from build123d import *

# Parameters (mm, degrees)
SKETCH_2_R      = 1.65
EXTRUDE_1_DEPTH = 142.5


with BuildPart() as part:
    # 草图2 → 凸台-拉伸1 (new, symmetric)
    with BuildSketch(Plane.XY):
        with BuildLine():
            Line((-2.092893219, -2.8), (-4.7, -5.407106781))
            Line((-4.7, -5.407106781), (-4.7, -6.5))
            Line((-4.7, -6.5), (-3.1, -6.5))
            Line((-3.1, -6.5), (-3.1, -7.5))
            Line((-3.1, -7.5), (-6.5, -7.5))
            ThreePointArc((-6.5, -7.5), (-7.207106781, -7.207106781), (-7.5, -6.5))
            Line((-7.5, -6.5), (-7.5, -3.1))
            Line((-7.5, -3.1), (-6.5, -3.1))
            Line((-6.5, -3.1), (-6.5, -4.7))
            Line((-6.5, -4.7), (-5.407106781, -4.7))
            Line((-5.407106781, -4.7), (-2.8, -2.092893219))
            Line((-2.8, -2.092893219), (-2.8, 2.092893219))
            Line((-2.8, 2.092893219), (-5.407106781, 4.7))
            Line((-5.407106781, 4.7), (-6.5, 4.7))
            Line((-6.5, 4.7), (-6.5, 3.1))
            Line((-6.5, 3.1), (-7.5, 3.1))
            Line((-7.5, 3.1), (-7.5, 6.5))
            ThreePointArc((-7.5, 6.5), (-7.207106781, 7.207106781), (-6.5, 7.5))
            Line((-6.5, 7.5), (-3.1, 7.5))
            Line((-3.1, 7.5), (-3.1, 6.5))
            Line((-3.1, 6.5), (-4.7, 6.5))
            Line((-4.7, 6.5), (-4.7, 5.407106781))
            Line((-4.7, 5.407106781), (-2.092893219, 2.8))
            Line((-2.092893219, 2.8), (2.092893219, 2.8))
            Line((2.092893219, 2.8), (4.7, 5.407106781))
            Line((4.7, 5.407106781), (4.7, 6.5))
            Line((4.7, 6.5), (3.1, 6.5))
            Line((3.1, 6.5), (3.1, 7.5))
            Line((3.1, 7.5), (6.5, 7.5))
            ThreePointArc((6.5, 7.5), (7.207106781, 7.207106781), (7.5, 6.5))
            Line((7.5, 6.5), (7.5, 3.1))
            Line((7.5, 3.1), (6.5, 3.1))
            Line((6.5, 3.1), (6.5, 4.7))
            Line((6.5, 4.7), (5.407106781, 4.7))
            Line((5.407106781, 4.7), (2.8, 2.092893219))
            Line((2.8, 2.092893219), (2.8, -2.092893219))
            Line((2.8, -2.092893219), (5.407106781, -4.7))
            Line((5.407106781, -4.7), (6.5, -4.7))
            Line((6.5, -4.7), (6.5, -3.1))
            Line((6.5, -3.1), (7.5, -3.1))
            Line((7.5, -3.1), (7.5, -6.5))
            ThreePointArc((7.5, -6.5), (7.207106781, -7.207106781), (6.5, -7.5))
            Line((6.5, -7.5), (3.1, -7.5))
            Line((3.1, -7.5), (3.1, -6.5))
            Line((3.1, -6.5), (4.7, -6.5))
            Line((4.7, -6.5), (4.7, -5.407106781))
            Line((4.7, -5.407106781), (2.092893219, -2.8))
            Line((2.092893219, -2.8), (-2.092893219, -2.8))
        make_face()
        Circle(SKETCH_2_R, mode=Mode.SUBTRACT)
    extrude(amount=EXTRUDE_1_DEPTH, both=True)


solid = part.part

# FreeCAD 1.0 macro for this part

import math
import FreeCAD as App
import Part
import Sketcher

doc = App.newDocument("Part")
body = doc.addObject("PartDesign::Body", "Body")

# Sketch on XY plane
sketch1 = body.newObject("Sketcher::SketchObject", "Sketch")
sketch1.AttachmentSupport = (doc.getObject("XY_Plane"), [""])
sketch1.MapMode = "FlatFace"
sketch1.addGeometry(Part.LineSegment(App.Vector(-4.7, -5.4, 0), App.Vector(-2.1, -2.8, 0)), False)
sketch1.addGeometry(Part.LineSegment(App.Vector(-2.1, -2.8, 0), App.Vector(2.1, -2.8, 0)), False)
sketch1.addGeometry(Part.LineSegment(App.Vector(2.1, -2.8, 0), App.Vector(4.7, -5.4, 0)), False)
sketch1.addGeometry(Part.LineSegment(App.Vector(4.7, -5.4, 0), App.Vector(4.7, -6.5, 0)), False)
sketch1.addGeometry(Part.LineSegment(App.Vector(4.7, -6.5, 0), App.Vector(3.1, -6.5, 0)), False)
sketch1.addGeometry(Part.LineSegment(App.Vector(3.1, -6.5, 0), App.Vector(3.1, -7.5, 0)), False)
sketch1.addGeometry(Part.LineSegment(App.Vector(3.1, -7.5, 0), App.Vector(6.5, -7.5, 0)), False)
sketch1.addGeometry(Part.ArcOfCircle(Part.Circle(App.Vector(6.5, -6.5, 0), App.Vector(0, 0, 1), 1), math.radians(-90), math.radians(0)), False)
sketch1.addGeometry(Part.LineSegment(App.Vector(7.5, -6.5, 0), App.Vector(7.5, -3.1, 0)), False)
sketch1.addGeometry(Part.LineSegment(App.Vector(7.5, -3.1, 0), App.Vector(6.5, -3.1, 0)), False)
sketch1.addGeometry(Part.LineSegment(App.Vector(6.5, -3.1, 0), App.Vector(6.5, -4.7, 0)), False)
sketch1.addGeometry(Part.LineSegment(App.Vector(6.5, -4.7, 0), App.Vector(5.4, -4.7, 0)), False)
sketch1.addGeometry(Part.LineSegment(App.Vector(5.4, -4.7, 0), App.Vector(2.8, -2.1, 0)), False)
sketch1.addGeometry(Part.LineSegment(App.Vector(2.8, -2.1, 0), App.Vector(2.8, 2.1, 0)), False)
sketch1.addGeometry(Part.LineSegment(App.Vector(2.8, 2.1, 0), App.Vector(5.4, 4.7, 0)), False)
sketch1.addGeometry(Part.LineSegment(App.Vector(5.4, 4.7, 0), App.Vector(6.5, 4.7, 0)), False)
sketch1.addGeometry(Part.LineSegment(App.Vector(6.5, 4.7, 0), App.Vector(6.5, 3.1, 0)), False)
sketch1.addGeometry(Part.LineSegment(App.Vector(6.5, 3.1, 0), App.Vector(7.5, 3.1, 0)), False)
sketch1.addGeometry(Part.LineSegment(App.Vector(7.5, 3.1, 0), App.Vector(7.5, 6.5, 0)), False)
sketch1.addGeometry(Part.ArcOfCircle(Part.Circle(App.Vector(6.5, 6.5, 0), App.Vector(0, 0, 1), 1), math.radians(0), math.radians(90)), False)
sketch1.addGeometry(Part.LineSegment(App.Vector(6.5, 7.5, 0), App.Vector(3.1, 7.5, 0)), False)
sketch1.addGeometry(Part.LineSegment(App.Vector(3.1, 7.5, 0), App.Vector(3.1, 6.5, 0)), False)
sketch1.addGeometry(Part.LineSegment(App.Vector(3.1, 6.5, 0), App.Vector(4.7, 6.5, 0)), False)
sketch1.addGeometry(Part.LineSegment(App.Vector(4.7, 6.5, 0), App.Vector(4.7, 5.4, 0)), False)
sketch1.addGeometry(Part.LineSegment(App.Vector(4.7, 5.4, 0), App.Vector(2.1, 2.8, 0)), False)
sketch1.addGeometry(Part.LineSegment(App.Vector(2.1, 2.8, 0), App.Vector(-2.1, 2.8, 0)), False)
sketch1.addGeometry(Part.LineSegment(App.Vector(-2.1, 2.8, 0), App.Vector(-4.7, 5.4, 0)), False)
sketch1.addGeometry(Part.LineSegment(App.Vector(-4.7, 5.4, 0), App.Vector(-4.7, 6.5, 0)), False)
sketch1.addGeometry(Part.LineSegment(App.Vector(-4.7, 6.5, 0), App.Vector(-3.1, 6.5, 0)), False)
sketch1.addGeometry(Part.LineSegment(App.Vector(-3.1, 6.5, 0), App.Vector(-3.1, 7.5, 0)), False)
sketch1.addGeometry(Part.LineSegment(App.Vector(-3.1, 7.5, 0), App.Vector(-6.5, 7.5, 0)), False)
sketch1.addGeometry(Part.ArcOfCircle(Part.Circle(App.Vector(-6.5, 6.5, 0), App.Vector(0, 0, 1), 1), math.radians(90), math.radians(180)), False)
sketch1.addGeometry(Part.LineSegment(App.Vector(-7.5, 6.5, 0), App.Vector(-7.5, 3.1, 0)), False)
sketch1.addGeometry(Part.LineSegment(App.Vector(-7.5, 3.1, 0), App.Vector(-6.5, 3.1, 0)), False)
sketch1.addGeometry(Part.LineSegment(App.Vector(-6.5, 3.1, 0), App.Vector(-6.5, 4.7, 0)), False)
sketch1.addGeometry(Part.LineSegment(App.Vector(-6.5, 4.7, 0), App.Vector(-5.4, 4.7, 0)), False)
sketch1.addGeometry(Part.LineSegment(App.Vector(-5.4, 4.7, 0), App.Vector(-2.8, 2.1, 0)), False)
sketch1.addGeometry(Part.LineSegment(App.Vector(-2.8, 2.1, 0), App.Vector(-2.8, -2.1, 0)), False)
sketch1.addGeometry(Part.LineSegment(App.Vector(-2.8, -2.1, 0), App.Vector(-5.4, -4.7, 0)), False)
sketch1.addGeometry(Part.LineSegment(App.Vector(-5.4, -4.7, 0), App.Vector(-6.5, -4.7, 0)), False)
sketch1.addGeometry(Part.LineSegment(App.Vector(-6.5, -4.7, 0), App.Vector(-6.5, -3.1, 0)), False)
sketch1.addGeometry(Part.LineSegment(App.Vector(-6.5, -3.1, 0), App.Vector(-7.5, -3.1, 0)), False)
sketch1.addGeometry(Part.LineSegment(App.Vector(-7.5, -3.1, 0), App.Vector(-7.5, -6.5, 0)), False)
sketch1.addGeometry(Part.ArcOfCircle(Part.Circle(App.Vector(-6.5, -6.5, 0), App.Vector(0, 0, 1), 1), math.radians(-180), math.radians(-90)), False)
sketch1.addGeometry(Part.LineSegment(App.Vector(-6.5, -7.5, 0), App.Vector(-3.1, -7.5, 0)), False)
sketch1.addGeometry(Part.LineSegment(App.Vector(-3.1, -7.5, 0), App.Vector(-3.1, -6.5, 0)), False)
sketch1.addGeometry(Part.LineSegment(App.Vector(-3.1, -6.5, 0), App.Vector(-4.7, -6.5, 0)), False)
sketch1.addGeometry(Part.LineSegment(App.Vector(-4.7, -6.5, 0), App.Vector(-4.7, -5.4, 0)), False)
sketch1.addGeometry(Part.Circle(App.Vector(0, 0, 0), App.Vector(0, 0, 1), 1.6), False)
sketch1.addConstraint(Sketcher.Constraint("Coincident", 0, 2, 1, 1))
sketch1.addConstraint(Sketcher.Constraint("Coincident", 1, 2, 2, 1))
sketch1.addConstraint(Sketcher.Constraint("Coincident", 2, 2, 3, 1))
sketch1.addConstraint(Sketcher.Constraint("Coincident", 3, 2, 4, 1))
sketch1.addConstraint(Sketcher.Constraint("Coincident", 4, 2, 5, 1))
sketch1.addConstraint(Sketcher.Constraint("Coincident", 5, 2, 6, 1))
sketch1.addConstraint(Sketcher.Constraint("Tangent", 6, 2, 7, 1))
sketch1.addConstraint(Sketcher.Constraint("Tangent", 7, 2, 8, 1))
sketch1.addConstraint(Sketcher.Constraint("Coincident", 8, 2, 9, 1))
sketch1.addConstraint(Sketcher.Constraint("Coincident", 9, 2, 10, 1))
sketch1.addConstraint(Sketcher.Constraint("Coincident", 10, 2, 11, 1))
sketch1.addConstraint(Sketcher.Constraint("Coincident", 11, 2, 12, 1))
sketch1.addConstraint(Sketcher.Constraint("Coincident", 12, 2, 13, 1))
sketch1.addConstraint(Sketcher.Constraint("Coincident", 13, 2, 14, 1))
sketch1.addConstraint(Sketcher.Constraint("Coincident", 14, 2, 15, 1))
sketch1.addConstraint(Sketcher.Constraint("Coincident", 15, 2, 16, 1))
sketch1.addConstraint(Sketcher.Constraint("Coincident", 16, 2, 17, 1))
sketch1.addConstraint(Sketcher.Constraint("Coincident", 17, 2, 18, 1))
sketch1.addConstraint(Sketcher.Constraint("Tangent", 18, 2, 19, 1))
sketch1.addConstraint(Sketcher.Constraint("Tangent", 19, 2, 20, 1))
sketch1.addConstraint(Sketcher.Constraint("Coincident", 20, 2, 21, 1))
sketch1.addConstraint(Sketcher.Constraint("Coincident", 21, 2, 22, 1))
sketch1.addConstraint(Sketcher.Constraint("Coincident", 22, 2, 23, 1))
sketch1.addConstraint(Sketcher.Constraint("Coincident", 23, 2, 24, 1))
sketch1.addConstraint(Sketcher.Constraint("Coincident", 24, 2, 25, 1))
sketch1.addConstraint(Sketcher.Constraint("Coincident", 25, 2, 26, 1))
sketch1.addConstraint(Sketcher.Constraint("Coincident", 26, 2, 27, 1))
sketch1.addConstraint(Sketcher.Constraint("Coincident", 27, 2, 28, 1))
sketch1.addConstraint(Sketcher.Constraint("Coincident", 28, 2, 29, 1))
sketch1.addConstraint(Sketcher.Constraint("Coincident", 29, 2, 30, 1))
sketch1.addConstraint(Sketcher.Constraint("Tangent", 30, 2, 31, 1))
sketch1.addConstraint(Sketcher.Constraint("Tangent", 31, 2, 32, 1))
sketch1.addConstraint(Sketcher.Constraint("Coincident", 32, 2, 33, 1))
sketch1.addConstraint(Sketcher.Constraint("Coincident", 33, 2, 34, 1))
sketch1.addConstraint(Sketcher.Constraint("Coincident", 34, 2, 35, 1))
sketch1.addConstraint(Sketcher.Constraint("Coincident", 35, 2, 36, 1))
sketch1.addConstraint(Sketcher.Constraint("Coincident", 36, 2, 37, 1))
sketch1.addConstraint(Sketcher.Constraint("Coincident", 37, 2, 38, 1))
sketch1.addConstraint(Sketcher.Constraint("Coincident", 38, 2, 39, 1))
sketch1.addConstraint(Sketcher.Constraint("Coincident", 39, 2, 40, 1))
sketch1.addConstraint(Sketcher.Constraint("Coincident", 40, 2, 41, 1))
sketch1.addConstraint(Sketcher.Constraint("Coincident", 41, 2, 42, 1))
sketch1.addConstraint(Sketcher.Constraint("Tangent", 42, 2, 43, 1))
sketch1.addConstraint(Sketcher.Constraint("Tangent", 43, 2, 44, 1))
sketch1.addConstraint(Sketcher.Constraint("Coincident", 44, 2, 45, 1))
sketch1.addConstraint(Sketcher.Constraint("Coincident", 45, 2, 46, 1))
sketch1.addConstraint(Sketcher.Constraint("Coincident", 46, 2, 47, 1))
sketch1.addConstraint(Sketcher.Constraint("Coincident", 47, 2, 0, 1))
sketch1.addConstraint(Sketcher.Constraint("Horizontal", 1))
sketch1.addConstraint(Sketcher.Constraint("Vertical", 3))
sketch1.addConstraint(Sketcher.Constraint("Horizontal", 4))
sketch1.addConstraint(Sketcher.Constraint("Vertical", 5))
sketch1.addConstraint(Sketcher.Constraint("Horizontal", 6))
sketch1.addConstraint(Sketcher.Constraint("Vertical", 8))
sketch1.addConstraint(Sketcher.Constraint("Horizontal", 9))
sketch1.addConstraint(Sketcher.Constraint("Vertical", 10))
sketch1.addConstraint(Sketcher.Constraint("Horizontal", 11))
sketch1.addConstraint(Sketcher.Constraint("Vertical", 13))
sketch1.addConstraint(Sketcher.Constraint("Horizontal", 15))
sketch1.addConstraint(Sketcher.Constraint("Vertical", 16))
sketch1.addConstraint(Sketcher.Constraint("Horizontal", 17))
sketch1.addConstraint(Sketcher.Constraint("Vertical", 18))
sketch1.addConstraint(Sketcher.Constraint("Horizontal", 20))
sketch1.addConstraint(Sketcher.Constraint("Vertical", 21))
sketch1.addConstraint(Sketcher.Constraint("Horizontal", 22))
sketch1.addConstraint(Sketcher.Constraint("Vertical", 23))
sketch1.addConstraint(Sketcher.Constraint("Horizontal", 25))
sketch1.addConstraint(Sketcher.Constraint("Vertical", 27))
sketch1.addConstraint(Sketcher.Constraint("Horizontal", 28))
sketch1.addConstraint(Sketcher.Constraint("Vertical", 29))
sketch1.addConstraint(Sketcher.Constraint("Horizontal", 30))
sketch1.addConstraint(Sketcher.Constraint("Vertical", 32))
sketch1.addConstraint(Sketcher.Constraint("Horizontal", 33))
sketch1.addConstraint(Sketcher.Constraint("Vertical", 34))
sketch1.addConstraint(Sketcher.Constraint("Horizontal", 35))
sketch1.addConstraint(Sketcher.Constraint("Vertical", 37))
sketch1.addConstraint(Sketcher.Constraint("Horizontal", 39))
sketch1.addConstraint(Sketcher.Constraint("Vertical", 40))
sketch1.addConstraint(Sketcher.Constraint("Horizontal", 41))
sketch1.addConstraint(Sketcher.Constraint("Vertical", 42))
sketch1.addConstraint(Sketcher.Constraint("Horizontal", 44))
sketch1.addConstraint(Sketcher.Constraint("Vertical", 45))
sketch1.addConstraint(Sketcher.Constraint("Horizontal", 46))
sketch1.addConstraint(Sketcher.Constraint("Vertical", 47))
sketch1.addConstraint(Sketcher.Constraint("Coincident", 48, 3, -1, 1))
sketch1.addConstraint(Sketcher.Constraint("Equal", 7, 19))
sketch1.addConstraint(Sketcher.Constraint("Equal", 19, 31))
sketch1.addConstraint(Sketcher.Constraint("Equal", 31, 43))
sketch1.addConstraint(Sketcher.Constraint("Symmetric", 7, 3, 31, 3, -1, 1))
sketch1.addConstraint(Sketcher.Constraint("Symmetric", 19, 3, 43, 3, -1, 1))
sketch1.addConstraint(Sketcher.Constraint("Symmetric", 0, 2, 24, 2, -1, 1))
sketch1.addConstraint(Sketcher.Constraint("Symmetric", 2, 2, 26, 2, -1, 1))
sketch1.addConstraint(Sketcher.Constraint("Symmetric", 4, 2, 28, 2, -1, 1))
sketch1.addConstraint(Sketcher.Constraint("Symmetric", 9, 2, 33, 2, -1, 1))
sketch1.addConstraint(Sketcher.Constraint("Symmetric", 11, 2, 35, 2, -1, 1))
sketch1.addConstraint(Sketcher.Constraint("Symmetric", 12, 2, 36, 2, -1, 1))
sketch1.addConstraint(Sketcher.Constraint("Symmetric", 14, 2, 38, 2, -1, 1))
sketch1.addConstraint(Sketcher.Constraint("Symmetric", 16, 2, 40, 2, -1, 1))
sketch1.addConstraint(Sketcher.Constraint("Symmetric", 21, 2, 45, 2, -1, 1))
sketch1.addConstraint(Sketcher.Constraint("Symmetric", 23, 2, 47, 2, -1, 1))
sketch1.addConstraint(Sketcher.Constraint("Symmetric", 19, 3, 31, 3, -2))
sketch1.addConstraint(Sketcher.Constraint("Symmetric", 23, 2, 26, 2, -2))
sketch1.addConstraint(Sketcher.Constraint("Symmetric", 21, 2, 28, 2, -2))
sketch1.addConstraint(Sketcher.Constraint("Symmetric", 16, 2, 33, 2, -2))
sketch1.addConstraint(Sketcher.Constraint("Symmetric", 14, 2, 35, 2, -2))
sketch1.addConstraint(Sketcher.Constraint("Perpendicular", 0, 2))
sketch1.addConstraint(Sketcher.Constraint("Parallel", 2, 12))
sketch1.addConstraint(Sketcher.Constraint("Perpendicular", 12, 14))
sketch1.addConstraint(Sketcher.Constraint("Perpendicular", 24, 26))
sketch1.addConstraint(Sketcher.Constraint("Perpendicular", 36, 38))
sketch1.addConstraint(Sketcher.Constraint("Horizontal", 43, 3, 3, 2))
sketch1.addConstraint(Sketcher.Constraint("Horizontal", 13, 2, 36, 2))
sketch1.addConstraint(Sketcher.Constraint("Vertical", 6, 2, 9, 2))
sketch1.addConstraint(Sketcher.Constraint("Equal", 39, 3))
sketch1.addConstraint(Sketcher.Constraint("Equal", 44, 8))
sketch1.addConstraint(Sketcher.Constraint("Equal", 46, 10))
sketch1.addConstraint(Sketcher.Constraint("Equal", 25, 13))
sketch1.addConstraint(Sketcher.Constraint("Equal", 2, 12))
sketch1.addConstraint(Sketcher.Constraint("Radius", 7, 1.0))
sketch1.addConstraint(Sketcher.Constraint("Diameter", 48, 3.3))
sketch1.addConstraint(Sketcher.Constraint("DistanceX", 4, 2, 4, 1, 1.6))
sketch1.addConstraint(Sketcher.Constraint("DistanceX", 6, 1, 6, 2, 3.4))
sketch1.addConstraint(Sketcher.Constraint("DistanceY", 7, 3, 19, 3, 13.0))
sketch1.addConstraint(Sketcher.Constraint("DistanceY", 0, 2, -1, 1, 2.8))
sketch1.addConstraint(Sketcher.Constraint("DistanceX", 1, 1, 1, 2, 4.185786))
pad1 = body.newObject("PartDesign::Pad", "Pad")
pad1.Profile = sketch1
pad1.Length = 285
pad1.Midplane = True

doc.recompute()
